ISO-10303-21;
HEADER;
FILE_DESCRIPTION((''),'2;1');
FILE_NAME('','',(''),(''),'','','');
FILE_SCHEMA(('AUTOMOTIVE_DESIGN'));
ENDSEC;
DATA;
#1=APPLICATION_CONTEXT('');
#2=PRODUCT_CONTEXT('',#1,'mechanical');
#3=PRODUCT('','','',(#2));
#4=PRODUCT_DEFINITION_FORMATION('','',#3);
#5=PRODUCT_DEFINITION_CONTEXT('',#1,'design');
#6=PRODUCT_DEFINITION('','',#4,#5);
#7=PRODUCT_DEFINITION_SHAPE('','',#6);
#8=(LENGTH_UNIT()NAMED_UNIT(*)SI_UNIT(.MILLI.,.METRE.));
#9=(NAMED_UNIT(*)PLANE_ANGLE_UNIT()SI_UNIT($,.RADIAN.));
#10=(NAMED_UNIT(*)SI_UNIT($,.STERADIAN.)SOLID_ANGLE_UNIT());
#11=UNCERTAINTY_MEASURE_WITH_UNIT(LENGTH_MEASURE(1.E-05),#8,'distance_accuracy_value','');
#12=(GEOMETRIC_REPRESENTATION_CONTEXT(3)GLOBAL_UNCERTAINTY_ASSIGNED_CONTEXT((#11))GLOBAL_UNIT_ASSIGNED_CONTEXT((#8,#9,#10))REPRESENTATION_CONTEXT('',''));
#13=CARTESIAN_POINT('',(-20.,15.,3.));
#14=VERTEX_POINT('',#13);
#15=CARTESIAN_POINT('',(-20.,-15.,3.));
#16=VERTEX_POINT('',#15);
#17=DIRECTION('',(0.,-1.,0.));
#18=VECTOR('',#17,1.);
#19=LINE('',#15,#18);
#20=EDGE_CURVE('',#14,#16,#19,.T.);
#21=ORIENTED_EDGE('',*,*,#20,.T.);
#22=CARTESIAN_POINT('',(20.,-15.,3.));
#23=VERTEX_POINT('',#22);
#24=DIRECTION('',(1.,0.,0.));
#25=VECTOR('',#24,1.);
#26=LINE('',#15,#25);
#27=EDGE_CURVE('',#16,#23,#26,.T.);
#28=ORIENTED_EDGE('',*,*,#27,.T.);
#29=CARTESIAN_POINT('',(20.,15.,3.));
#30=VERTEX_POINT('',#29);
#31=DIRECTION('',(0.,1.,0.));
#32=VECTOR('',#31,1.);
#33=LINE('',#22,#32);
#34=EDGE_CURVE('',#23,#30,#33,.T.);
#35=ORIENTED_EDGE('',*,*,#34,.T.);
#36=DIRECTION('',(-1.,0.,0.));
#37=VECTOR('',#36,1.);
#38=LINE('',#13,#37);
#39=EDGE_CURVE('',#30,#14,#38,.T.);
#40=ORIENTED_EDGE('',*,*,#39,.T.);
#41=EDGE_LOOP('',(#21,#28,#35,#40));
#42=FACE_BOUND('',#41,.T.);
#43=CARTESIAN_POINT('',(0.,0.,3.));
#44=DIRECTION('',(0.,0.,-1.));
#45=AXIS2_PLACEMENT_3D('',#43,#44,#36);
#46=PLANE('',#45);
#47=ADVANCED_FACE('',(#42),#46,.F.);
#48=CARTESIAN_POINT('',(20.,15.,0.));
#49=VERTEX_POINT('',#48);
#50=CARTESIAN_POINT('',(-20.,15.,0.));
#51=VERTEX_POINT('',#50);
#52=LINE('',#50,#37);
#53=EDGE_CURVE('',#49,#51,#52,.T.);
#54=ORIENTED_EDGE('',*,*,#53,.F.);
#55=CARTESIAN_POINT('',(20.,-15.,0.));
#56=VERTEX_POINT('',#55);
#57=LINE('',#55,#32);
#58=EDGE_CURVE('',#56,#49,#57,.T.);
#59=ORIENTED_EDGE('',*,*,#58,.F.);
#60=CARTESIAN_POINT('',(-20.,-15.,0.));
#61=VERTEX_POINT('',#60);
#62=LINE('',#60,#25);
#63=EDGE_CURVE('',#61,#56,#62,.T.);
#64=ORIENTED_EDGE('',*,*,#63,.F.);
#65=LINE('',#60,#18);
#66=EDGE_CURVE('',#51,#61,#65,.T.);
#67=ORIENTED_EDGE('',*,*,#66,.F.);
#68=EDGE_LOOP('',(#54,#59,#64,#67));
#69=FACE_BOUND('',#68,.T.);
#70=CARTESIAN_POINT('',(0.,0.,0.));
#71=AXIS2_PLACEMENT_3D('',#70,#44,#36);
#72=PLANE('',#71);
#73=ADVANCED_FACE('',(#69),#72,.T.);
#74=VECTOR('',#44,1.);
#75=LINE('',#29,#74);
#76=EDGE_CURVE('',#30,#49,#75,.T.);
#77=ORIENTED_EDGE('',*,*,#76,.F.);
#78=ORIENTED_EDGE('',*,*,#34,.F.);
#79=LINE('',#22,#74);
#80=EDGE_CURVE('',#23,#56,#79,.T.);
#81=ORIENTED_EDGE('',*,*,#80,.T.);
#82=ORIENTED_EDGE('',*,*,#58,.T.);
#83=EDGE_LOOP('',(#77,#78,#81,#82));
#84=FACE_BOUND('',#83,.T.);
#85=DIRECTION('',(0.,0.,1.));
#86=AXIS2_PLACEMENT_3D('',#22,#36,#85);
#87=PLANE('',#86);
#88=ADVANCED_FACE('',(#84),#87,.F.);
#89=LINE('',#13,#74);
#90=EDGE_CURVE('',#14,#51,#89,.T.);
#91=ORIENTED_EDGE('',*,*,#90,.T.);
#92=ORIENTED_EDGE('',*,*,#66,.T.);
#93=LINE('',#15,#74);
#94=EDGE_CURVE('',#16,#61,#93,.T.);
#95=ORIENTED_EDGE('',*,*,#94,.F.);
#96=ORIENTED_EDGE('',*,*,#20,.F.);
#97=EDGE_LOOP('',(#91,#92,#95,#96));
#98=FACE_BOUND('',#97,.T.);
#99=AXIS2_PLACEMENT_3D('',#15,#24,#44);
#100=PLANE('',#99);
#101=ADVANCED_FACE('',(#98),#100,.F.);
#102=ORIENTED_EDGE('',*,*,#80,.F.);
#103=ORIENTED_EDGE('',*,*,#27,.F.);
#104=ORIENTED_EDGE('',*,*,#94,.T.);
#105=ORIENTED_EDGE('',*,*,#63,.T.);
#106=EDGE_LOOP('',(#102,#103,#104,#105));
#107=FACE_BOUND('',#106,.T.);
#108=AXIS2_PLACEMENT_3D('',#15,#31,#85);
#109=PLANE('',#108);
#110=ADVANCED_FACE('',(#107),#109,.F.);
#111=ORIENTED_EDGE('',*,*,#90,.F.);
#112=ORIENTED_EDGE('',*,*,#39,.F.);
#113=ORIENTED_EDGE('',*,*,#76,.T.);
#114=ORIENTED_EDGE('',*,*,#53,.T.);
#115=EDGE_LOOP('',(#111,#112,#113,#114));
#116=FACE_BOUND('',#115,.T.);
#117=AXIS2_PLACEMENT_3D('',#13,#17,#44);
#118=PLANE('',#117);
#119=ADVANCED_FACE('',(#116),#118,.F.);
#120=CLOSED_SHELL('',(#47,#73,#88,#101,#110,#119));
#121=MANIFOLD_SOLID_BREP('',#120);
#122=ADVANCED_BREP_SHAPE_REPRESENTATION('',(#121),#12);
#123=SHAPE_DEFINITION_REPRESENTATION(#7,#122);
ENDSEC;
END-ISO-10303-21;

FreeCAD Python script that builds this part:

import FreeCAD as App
import Part
import Sketcher


def add_polygon(sketch, points):
    """Adds a closed chain of lines whose ends are joined by coincident constraints."""
    first, n = sketch.GeometryCount, len(points)
    for a, b in zip(points, points[1:] + points[:1]):
        sketch.addGeometry(Part.LineSegment(App.Vector(*a, 0), App.Vector(*b, 0)), False)
    for i in range(n):
        sketch.addConstraint(Sketcher.Constraint("Coincident", first + i, 2, first + (i + 1) % n, 1))

doc = App.newDocument("Part")
body = doc.addObject("PartDesign::Body", "Body")

# Sketch on XY plane
sketch1 = doc.addObject("Sketcher::SketchObject", "Sketch")
body.addObject(sketch1)
sketch1.AttachmentSupport = (doc.XY_Plane, [""])
sketch1.MapMode = "FlatFace"
add_polygon(sketch1, [(-20, 15), (-20, -15), (20, -15), (20, 15)])  # lines 0-3
sketch1.addConstraint(Sketcher.Constraint("Vertical", 0))
sketch1.addConstraint(Sketcher.Constraint("Horizontal", 1))
sketch1.addConstraint(Sketcher.Constraint("Vertical", 2))
sketch1.addConstraint(Sketcher.Constraint("Horizontal", 3))
sketch1.addConstraint(Sketcher.Constraint("Symmetric", 0, 2, 2, 2, -1, 1))
sketch1.addConstraint(Sketcher.Constraint("DistanceX", 1, 1, 1, 2, 40.0))
sketch1.addConstraint(Sketcher.Constraint("DistanceY", 0, 2, 0, 1, 30.0))
pad1 = doc.addObject("PartDesign::Pad", "Pad")
body.addObject(pad1)
pad1.Profile = sketch1
pad1.Length = 3

doc.recompute()
